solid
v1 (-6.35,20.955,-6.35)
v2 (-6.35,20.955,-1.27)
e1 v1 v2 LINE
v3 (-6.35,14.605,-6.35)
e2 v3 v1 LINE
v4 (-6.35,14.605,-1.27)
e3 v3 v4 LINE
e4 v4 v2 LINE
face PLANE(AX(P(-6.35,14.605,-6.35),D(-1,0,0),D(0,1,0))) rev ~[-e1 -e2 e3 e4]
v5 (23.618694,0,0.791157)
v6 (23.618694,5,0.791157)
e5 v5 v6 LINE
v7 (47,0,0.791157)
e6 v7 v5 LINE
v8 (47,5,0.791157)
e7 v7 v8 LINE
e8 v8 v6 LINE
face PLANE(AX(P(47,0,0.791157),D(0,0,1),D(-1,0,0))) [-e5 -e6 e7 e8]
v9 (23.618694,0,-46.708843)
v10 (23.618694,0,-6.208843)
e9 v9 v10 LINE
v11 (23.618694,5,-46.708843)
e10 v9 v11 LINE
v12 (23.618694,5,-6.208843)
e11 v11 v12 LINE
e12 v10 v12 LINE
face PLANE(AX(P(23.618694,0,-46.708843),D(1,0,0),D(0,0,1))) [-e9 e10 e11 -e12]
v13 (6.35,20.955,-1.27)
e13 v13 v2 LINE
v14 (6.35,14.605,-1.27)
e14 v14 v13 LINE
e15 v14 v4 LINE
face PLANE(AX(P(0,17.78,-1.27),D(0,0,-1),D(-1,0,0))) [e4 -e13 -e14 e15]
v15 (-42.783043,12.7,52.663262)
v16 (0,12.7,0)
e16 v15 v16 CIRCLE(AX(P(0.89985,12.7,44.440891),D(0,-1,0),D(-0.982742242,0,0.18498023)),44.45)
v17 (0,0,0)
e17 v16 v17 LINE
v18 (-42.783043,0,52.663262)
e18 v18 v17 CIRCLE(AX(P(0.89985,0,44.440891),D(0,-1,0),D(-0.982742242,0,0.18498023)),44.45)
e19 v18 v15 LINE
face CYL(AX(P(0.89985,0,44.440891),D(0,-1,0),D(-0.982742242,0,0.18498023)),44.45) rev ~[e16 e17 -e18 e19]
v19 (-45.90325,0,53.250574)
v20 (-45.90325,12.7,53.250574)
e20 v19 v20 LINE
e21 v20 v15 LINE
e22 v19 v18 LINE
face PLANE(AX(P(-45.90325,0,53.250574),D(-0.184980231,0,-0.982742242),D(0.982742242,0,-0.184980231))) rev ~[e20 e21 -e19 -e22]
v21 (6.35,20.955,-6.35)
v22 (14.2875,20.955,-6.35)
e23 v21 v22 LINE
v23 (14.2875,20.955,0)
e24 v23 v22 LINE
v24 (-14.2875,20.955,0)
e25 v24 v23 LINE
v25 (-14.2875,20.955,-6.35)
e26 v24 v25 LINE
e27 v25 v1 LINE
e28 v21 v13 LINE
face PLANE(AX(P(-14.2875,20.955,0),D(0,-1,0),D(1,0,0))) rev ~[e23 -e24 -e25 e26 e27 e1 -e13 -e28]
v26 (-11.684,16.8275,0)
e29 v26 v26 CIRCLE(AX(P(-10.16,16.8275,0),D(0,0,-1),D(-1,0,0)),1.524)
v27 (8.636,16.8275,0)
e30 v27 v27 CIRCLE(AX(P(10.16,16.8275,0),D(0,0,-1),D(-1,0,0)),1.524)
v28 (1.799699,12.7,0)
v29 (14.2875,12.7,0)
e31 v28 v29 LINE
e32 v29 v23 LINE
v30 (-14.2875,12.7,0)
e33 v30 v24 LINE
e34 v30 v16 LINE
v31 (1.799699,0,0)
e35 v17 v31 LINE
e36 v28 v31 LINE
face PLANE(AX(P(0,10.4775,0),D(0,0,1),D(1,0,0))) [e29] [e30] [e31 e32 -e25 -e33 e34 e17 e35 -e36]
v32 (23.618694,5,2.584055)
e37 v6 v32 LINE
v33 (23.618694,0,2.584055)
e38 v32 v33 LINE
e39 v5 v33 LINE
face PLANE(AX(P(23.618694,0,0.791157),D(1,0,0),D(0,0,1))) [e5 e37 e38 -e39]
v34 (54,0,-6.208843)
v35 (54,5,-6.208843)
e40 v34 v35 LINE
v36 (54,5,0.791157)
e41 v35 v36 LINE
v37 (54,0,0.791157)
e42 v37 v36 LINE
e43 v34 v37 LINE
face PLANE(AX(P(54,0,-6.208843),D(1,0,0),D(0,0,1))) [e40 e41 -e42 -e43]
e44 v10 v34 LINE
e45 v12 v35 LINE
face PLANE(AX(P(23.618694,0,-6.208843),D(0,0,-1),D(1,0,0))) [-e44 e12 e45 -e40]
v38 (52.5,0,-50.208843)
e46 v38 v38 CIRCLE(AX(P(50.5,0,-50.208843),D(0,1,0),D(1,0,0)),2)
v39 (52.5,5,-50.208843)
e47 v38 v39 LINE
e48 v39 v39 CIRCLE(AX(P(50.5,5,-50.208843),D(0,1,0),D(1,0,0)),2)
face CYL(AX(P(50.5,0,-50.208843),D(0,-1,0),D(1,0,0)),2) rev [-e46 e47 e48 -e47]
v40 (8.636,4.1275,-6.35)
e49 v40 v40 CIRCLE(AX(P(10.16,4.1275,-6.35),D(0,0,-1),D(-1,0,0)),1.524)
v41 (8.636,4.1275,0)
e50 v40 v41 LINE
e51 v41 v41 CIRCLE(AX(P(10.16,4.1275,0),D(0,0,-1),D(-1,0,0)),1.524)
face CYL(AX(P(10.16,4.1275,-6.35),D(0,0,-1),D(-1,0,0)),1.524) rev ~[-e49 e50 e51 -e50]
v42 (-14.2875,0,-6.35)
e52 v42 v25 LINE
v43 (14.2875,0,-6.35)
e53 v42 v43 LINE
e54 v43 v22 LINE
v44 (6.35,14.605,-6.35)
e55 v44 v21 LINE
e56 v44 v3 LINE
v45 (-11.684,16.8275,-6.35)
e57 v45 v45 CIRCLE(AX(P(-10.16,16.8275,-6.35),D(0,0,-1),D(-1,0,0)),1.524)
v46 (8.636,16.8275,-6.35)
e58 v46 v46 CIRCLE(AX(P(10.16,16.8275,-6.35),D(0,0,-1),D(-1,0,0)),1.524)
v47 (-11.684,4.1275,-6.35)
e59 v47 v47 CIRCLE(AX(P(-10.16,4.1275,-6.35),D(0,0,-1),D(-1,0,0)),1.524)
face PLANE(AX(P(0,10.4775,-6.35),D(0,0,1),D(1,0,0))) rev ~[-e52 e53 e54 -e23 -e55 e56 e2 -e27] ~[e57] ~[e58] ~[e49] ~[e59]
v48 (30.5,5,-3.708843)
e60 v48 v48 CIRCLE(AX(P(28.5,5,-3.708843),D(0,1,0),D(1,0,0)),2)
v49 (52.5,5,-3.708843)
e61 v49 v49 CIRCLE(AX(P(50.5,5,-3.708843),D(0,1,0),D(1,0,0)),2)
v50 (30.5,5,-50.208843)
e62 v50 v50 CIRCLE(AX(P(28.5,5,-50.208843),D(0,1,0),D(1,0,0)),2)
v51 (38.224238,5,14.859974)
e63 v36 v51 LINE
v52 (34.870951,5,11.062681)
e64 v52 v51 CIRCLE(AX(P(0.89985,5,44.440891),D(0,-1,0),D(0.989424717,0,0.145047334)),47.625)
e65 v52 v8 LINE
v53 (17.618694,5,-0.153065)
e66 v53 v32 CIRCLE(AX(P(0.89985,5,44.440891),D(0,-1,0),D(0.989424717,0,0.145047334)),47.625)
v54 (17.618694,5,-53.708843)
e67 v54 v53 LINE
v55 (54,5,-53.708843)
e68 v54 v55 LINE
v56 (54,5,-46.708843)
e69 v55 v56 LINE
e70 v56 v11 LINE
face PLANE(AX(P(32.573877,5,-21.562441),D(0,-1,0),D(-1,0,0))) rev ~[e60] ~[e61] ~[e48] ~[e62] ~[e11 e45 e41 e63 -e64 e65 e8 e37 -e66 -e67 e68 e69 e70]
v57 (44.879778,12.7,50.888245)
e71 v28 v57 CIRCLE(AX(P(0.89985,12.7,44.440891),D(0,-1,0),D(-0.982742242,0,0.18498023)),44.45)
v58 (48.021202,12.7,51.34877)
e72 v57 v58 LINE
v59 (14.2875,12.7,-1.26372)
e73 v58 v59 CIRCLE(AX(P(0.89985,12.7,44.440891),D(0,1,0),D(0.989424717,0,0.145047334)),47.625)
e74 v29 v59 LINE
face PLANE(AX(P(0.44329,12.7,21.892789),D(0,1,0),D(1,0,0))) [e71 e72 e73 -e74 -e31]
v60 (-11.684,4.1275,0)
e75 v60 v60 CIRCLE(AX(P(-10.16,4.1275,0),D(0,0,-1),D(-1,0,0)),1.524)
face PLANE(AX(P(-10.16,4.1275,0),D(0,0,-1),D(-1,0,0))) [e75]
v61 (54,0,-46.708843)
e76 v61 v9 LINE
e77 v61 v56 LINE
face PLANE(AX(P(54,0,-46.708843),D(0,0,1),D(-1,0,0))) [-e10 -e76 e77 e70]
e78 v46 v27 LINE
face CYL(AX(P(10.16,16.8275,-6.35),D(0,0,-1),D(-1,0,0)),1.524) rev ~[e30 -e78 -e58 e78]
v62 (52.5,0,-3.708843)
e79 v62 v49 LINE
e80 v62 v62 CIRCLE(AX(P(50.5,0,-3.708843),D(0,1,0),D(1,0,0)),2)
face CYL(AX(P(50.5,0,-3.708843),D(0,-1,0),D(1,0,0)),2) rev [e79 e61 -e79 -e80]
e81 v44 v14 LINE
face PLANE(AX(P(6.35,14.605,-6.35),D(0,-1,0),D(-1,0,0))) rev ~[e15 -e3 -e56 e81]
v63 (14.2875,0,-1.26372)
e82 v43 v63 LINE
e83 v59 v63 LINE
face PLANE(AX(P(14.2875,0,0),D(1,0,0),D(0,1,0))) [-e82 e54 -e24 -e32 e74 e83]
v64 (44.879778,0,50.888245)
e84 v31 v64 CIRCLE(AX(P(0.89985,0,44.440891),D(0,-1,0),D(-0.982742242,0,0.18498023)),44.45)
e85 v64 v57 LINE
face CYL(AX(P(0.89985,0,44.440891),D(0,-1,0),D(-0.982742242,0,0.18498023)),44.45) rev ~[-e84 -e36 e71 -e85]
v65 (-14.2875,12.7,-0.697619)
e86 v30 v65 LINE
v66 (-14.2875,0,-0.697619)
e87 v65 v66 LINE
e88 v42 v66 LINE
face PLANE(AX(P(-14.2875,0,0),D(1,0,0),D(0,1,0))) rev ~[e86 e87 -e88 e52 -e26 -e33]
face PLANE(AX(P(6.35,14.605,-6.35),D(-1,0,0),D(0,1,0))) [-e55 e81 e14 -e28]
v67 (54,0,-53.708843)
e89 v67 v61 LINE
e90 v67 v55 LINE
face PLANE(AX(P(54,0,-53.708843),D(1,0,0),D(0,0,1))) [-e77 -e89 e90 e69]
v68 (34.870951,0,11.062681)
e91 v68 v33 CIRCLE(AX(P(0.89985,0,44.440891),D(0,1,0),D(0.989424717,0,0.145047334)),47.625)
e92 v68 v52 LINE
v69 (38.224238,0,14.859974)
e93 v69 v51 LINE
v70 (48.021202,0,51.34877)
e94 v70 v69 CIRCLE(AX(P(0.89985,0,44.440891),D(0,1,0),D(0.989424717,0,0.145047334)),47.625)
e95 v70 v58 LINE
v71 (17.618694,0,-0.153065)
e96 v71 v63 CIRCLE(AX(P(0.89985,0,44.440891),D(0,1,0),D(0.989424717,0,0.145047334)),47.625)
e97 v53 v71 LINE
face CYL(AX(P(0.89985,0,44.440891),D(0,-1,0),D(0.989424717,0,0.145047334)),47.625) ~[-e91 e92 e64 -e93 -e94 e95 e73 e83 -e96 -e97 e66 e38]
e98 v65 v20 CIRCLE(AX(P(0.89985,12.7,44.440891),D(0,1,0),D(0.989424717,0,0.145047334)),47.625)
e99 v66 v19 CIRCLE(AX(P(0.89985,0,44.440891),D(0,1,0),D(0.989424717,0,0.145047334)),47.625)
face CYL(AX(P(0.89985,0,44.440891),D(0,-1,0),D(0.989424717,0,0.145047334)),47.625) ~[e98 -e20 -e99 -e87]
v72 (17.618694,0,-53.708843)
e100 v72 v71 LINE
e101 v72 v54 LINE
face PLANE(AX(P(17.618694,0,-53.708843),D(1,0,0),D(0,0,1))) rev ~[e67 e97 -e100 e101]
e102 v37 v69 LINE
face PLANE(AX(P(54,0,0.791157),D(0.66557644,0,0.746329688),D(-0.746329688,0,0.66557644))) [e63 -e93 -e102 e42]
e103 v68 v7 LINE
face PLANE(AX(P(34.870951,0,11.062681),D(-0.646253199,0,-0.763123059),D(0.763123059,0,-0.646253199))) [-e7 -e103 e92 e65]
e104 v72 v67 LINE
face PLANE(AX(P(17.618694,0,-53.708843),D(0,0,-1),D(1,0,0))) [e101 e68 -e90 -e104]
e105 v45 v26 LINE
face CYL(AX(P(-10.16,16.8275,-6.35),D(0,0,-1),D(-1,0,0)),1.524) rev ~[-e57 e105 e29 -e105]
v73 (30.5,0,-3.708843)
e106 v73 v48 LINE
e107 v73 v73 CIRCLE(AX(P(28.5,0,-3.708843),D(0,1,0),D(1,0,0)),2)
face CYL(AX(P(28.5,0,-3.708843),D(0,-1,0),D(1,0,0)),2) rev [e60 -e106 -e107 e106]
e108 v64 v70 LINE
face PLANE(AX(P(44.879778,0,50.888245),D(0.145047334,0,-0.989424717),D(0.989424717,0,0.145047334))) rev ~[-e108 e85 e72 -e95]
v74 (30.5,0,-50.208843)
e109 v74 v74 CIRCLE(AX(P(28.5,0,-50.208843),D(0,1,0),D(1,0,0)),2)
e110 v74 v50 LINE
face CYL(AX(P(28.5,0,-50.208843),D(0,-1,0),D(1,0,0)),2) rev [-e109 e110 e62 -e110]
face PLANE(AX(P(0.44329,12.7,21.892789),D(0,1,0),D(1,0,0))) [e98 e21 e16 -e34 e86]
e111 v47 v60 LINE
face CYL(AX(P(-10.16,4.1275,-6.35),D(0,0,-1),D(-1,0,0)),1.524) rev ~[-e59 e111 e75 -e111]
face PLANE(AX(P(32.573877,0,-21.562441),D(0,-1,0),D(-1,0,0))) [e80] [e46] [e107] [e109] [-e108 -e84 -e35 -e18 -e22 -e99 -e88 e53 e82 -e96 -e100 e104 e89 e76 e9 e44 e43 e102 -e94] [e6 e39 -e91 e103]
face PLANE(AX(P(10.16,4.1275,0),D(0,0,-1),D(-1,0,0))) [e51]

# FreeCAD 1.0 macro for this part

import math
import FreeCAD as App
import Part
import Sketcher

V = App.Vector
Q = App.Units.Quantity

doc = App.newDocument("Part")
params = doc.addObject("Spreadsheet::Sheet", "Params")
for row, (alias, value) in enumerate([
    ("sketch1_radius", "1.75 in"),
    ("sketch1_radius2", "1.875 in"),
    ("pad1_length", "0.5 in"),
    ("sketch2_width", "1.125 in"),
    ("sketch2_height", "0.825 in"),
    ("pad2_length", "0.25 in"),
    ("sketch3_width", "1.125 in"),
    ("sketch3_height", "0.825 in"),
    ("pad3_length", "0.2 in"),
    ("sketch4_width", "0.5 in"),
    ("sketch4_height", "0.25 in"),
    ("pocket1_length", "0.2 in"),
    ("sketch5_diameter", "0.12 in"),
    ("pocket2_length", "0.25 in"),
    ("pad4_length", "5 mm"),
], start=1):
    params.set(f"A{row}", alias)
    params.set(f"B{row}", "=" + value)
    params.setAlias(f"B{row}", alias)

body = doc.addObject("PartDesign::Body", "Body")

# Sketch on XZ plane
sketch1 = body.newObject("Sketcher::SketchObject", "Sketch")
sketch1.AttachmentSupport = (doc.getObject("XZ_Plane"), [""])
sketch1.MapMode = "FlatFace"
sketch1.addGeometry([
    Part.LineSegment(V(-45.90325, 53.250574, 0), V(-42.783043, 52.663262, 0)),
    Part.ArcOfCircle(Part.Circle(V(0.89985, 44.440891, 0), V(0, 0, 1), 44.45), math.radians(169.34002), math.radians(368.34002)),
    Part.LineSegment(V(44.879778, 50.888245, 0), V(48.021202, 51.34877, 0)),
    Part.ArcOfCircle(Part.Circle(V(0.89985, 44.440891, 0), V(0, 0, 1), 47.625), math.radians(169.34002), math.radians(368.34002)),
], False)
sketch1.addConstraint([
    Sketcher.Constraint("Coincident", 0, 2, 1, 1),
    Sketcher.Constraint("Coincident", 1, 2, 2, 1),
    Sketcher.Constraint("Coincident", 2, 2, 3, 2),
    Sketcher.Constraint("Coincident", 3, 1, 0, 1),
    Sketcher.Constraint("Coincident", 3, 3, 1, 3),
    Sketcher.Constraint("Radius", 1, Q("1.75 in")),
    Sketcher.Constraint("Radius", 3, Q("1.875 in")),
    Sketcher.Constraint("DistanceX", -1, 1, 2, 2, Q("48.021202 mm")),
    Sketcher.Constraint("DistanceX", 3, 1, 3, 3, Q("46.803099 mm")),
    Sketcher.Constraint("DistanceX", -1, 1, 1, 3, Q("0.89985 mm")),
    Sketcher.Constraint("DistanceY", -1, 1, 1, 3, Q("44.440891 mm")),
    Sketcher.Constraint("DistanceY", -1, 1, 0, 2, Q("52.663262 mm")),
    Sketcher.Constraint("DistanceX", -1, 1, 1, 2, Q("44.879778 mm")),
])
sketch1.setExpression("Constraints[5]", "Params.sketch1_radius")
sketch1.setExpression("Constraints[6]", "Params.sketch1_radius2")
pad1 = body.newObject("PartDesign::Pad", "Pad")
pad1.Profile = sketch1
pad1.setExpression("Length", "Params.pad1_length")
pad1.Reversed = True

# Sketch on XY plane
sketch2 = body.newObject("Sketcher::SketchObject", "Sketch001")
sketch2.AttachmentSupport = (doc.getObject("XY_Plane"), [""])
sketch2.MapMode = "FlatFace"
sketch2.addGeometry([
    Part.LineSegment(V(-14.2875, 20.955, 0), V(-14.2875, 0, 0)),
    Part.LineSegment(V(-14.2875, 0, 0), V(14.2875, 0, 0)),
    Part.LineSegment(V(14.2875, 0, 0), V(14.2875, 20.955, 0)),
    Part.LineSegment(V(14.2875, 20.955, 0), V(-14.2875, 20.955, 0)),
], False)
sketch2.addConstraint([
    Sketcher.Constraint("Coincident", 0, 2, 1, 1),
    Sketcher.Constraint("Coincident", 1, 2, 2, 1),
    Sketcher.Constraint("Coincident", 2, 2, 3, 1),
    Sketcher.Constraint("Coincident", 3, 2, 0, 1),
    Sketcher.Constraint("Vertical", 0),
    Sketcher.Constraint("Horizontal", 1),
    Sketcher.Constraint("Vertical", 2),
    Sketcher.Constraint("Horizontal", 3),
    Sketcher.Constraint("Symmetric", 0, 2, 1, 2, -1, 1),
    Sketcher.Constraint("DistanceX", 1, 1, 1, 2, Q("1.125 in")),
    Sketcher.Constraint("DistanceY", 0, 2, 0, 1, Q("0.825 in")),
])
sketch2.setExpression("Constraints[9]", "Params.sketch2_width")
sketch2.setExpression("Constraints[10]", "Params.sketch2_height")
pad2 = body.newObject("PartDesign::Pad", "Pad001")
pad2.Profile = sketch2
pad2.setExpression("Length", "Params.pad2_length")
pad2.Reversed = True

# Sketch on XY plane
sketch3 = body.newObject("Sketcher::SketchObject", "Sketch002")
sketch3.AttachmentSupport = (doc.getObject("XY_Plane"), [""])
sketch3.MapMode = "FlatFace"
sketch3.addGeometry([
    Part.LineSegment(V(-14.2875, 20.955, 0), V(-14.2875, 0, 0)),
    Part.LineSegment(V(-14.2875, 0, 0), V(14.2875, 0, 0)),
    Part.LineSegment(V(14.2875, 0, 0), V(14.2875, 20.955, 0)),
    Part.LineSegment(V(14.2875, 20.955, 0), V(-14.2875, 20.955, 0)),
], False)
sketch3.addConstraint([
    Sketcher.Constraint("Coincident", 0, 2, 1, 1),
    Sketcher.Constraint("Coincident", 1, 2, 2, 1),
    Sketcher.Constraint("Coincident", 2, 2, 3, 1),
    Sketcher.Constraint("Coincident", 3, 2, 0, 1),
    Sketcher.Constraint("Vertical", 0),
    Sketcher.Constraint("Horizontal", 1),
    Sketcher.Constraint("Vertical", 2),
    Sketcher.Constraint("Horizontal", 3),
    Sketcher.Constraint("Symmetric", 0, 2, 1, 2, -1, 1),
    Sketcher.Constraint("DistanceX", 1, 1, 1, 2, Q("1.125 in")),
    Sketcher.Constraint("DistanceY", 0, 2, 0, 1, Q("0.825 in")),
])
sketch3.setExpression("Constraints[9]", "Params.sketch3_width")
sketch3.setExpression("Constraints[10]", "Params.sketch3_height")
pad3 = body.newObject("PartDesign::Pad", "Pad002")
pad3.Profile = sketch3
pad3.setExpression("Length", "Params.pad3_length")
pad3.Reversed = True

# Sketch on XY plane
sketch4 = body.newObject("Sketcher::SketchObject", "Sketch003")
sketch4.AttachmentSupport = (doc.getObject("XY_Plane"), [""])
sketch4.MapMode = "FlatFace"
sketch4.AttachmentOffset = App.Placement(V(0, 0, -0.25 * 25.4), App.Rotation())
sketch4.addGeometry([
    Part.LineSegment(V(6.35, 20.955, 0), V(6.35, 14.605, 0)),
    Part.LineSegment(V(6.35, 14.605, 0), V(-6.35, 14.605, 0)),
    Part.LineSegment(V(-6.35, 14.605, 0), V(-6.35, 20.955, 0)),
    Part.LineSegment(V(-6.35, 20.955, 0), V(6.35, 20.955, 0)),
], False)
sketch4.addConstraint([
    Sketcher.Constraint("Coincident", 0, 2, 1, 1),
    Sketcher.Constraint("Coincident", 1, 2, 2, 1),
    Sketcher.Constraint("Coincident", 2, 2, 3, 1),
    Sketcher.Constraint("Coincident", 3, 2, 0, 1),
    Sketcher.Constraint("Vertical", 0),
    Sketcher.Constraint("Horizontal", 1),
    Sketcher.Constraint("Vertical", 2),
    Sketcher.Constraint("Horizontal", 3),
    Sketcher.Constraint("DistanceX", 1, 2, 1, 1, Q("0.5 in")),
    Sketcher.Constraint("DistanceY", 0, 2, 0, 1, Q("0.25 in")),
    Sketcher.Constraint("DistanceX", -1, 1, 0, 2, Q("0.25 in")),
    Sketcher.Constraint("DistanceY", -1, 1, 0, 2, Q("0.575 in")),
])
sketch4.setExpression("Constraints[8]", "Params.sketch4_width")
sketch4.setExpression("Constraints[9]", "Params.sketch4_height")
pocket1 = body.newObject("PartDesign::Pocket", "Pocket")
pocket1.Profile = sketch4
pocket1.setExpression("Length", "Params.pocket1_length")
pocket1.Reversed = True

# Sketch on XY plane
sketch5 = body.newObject("Sketcher::SketchObject", "Sketch004")
sketch5.AttachmentSupport = (doc.getObject("XY_Plane"), [""])
sketch5.MapMode = "FlatFace"
sketch5.AttachmentOffset = App.Placement(V(0, 0, -0.25 * 25.4), App.Rotation())
sketch5.addGeometry([
    Part.Circle(V(10.16, 4.1275, 0), V(0, 0, 1), 1.524),
    Part.Circle(V(10.16, 16.8275, 0), V(0, 0, 1), 1.524),
    Part.Circle(V(-10.16, 4.1275, 0), V(0, 0, 1), 1.524),
    Part.Circle(V(-10.16, 16.8275, 0), V(0, 0, 1), 1.524),
], False)
sketch5.addConstraint([
    Sketcher.Constraint("Equal", 0, 1),
    Sketcher.Constraint("Equal", 1, 2),
    Sketcher.Constraint("Equal", 2, 3),
    Sketcher.Constraint("Symmetric", 0, 3, 2, 3, -2),
    Sketcher.Constraint("Symmetric", 1, 3, 3, 3, -2),
    Sketcher.Constraint("Vertical", 0, 3, 1, 3),
    Sketcher.Constraint("Diameter", 0, Q("0.12 in")),
    Sketcher.Constraint("DistanceX", -1, 1, 0, 3, Q("0.4 in")),
    Sketcher.Constraint("DistanceY", 0, 3, 1, 3, Q("0.5 in")),
    Sketcher.Constraint("DistanceY", -1, 1, 0, 3, Q("0.1625 in")),
])
sketch5.setExpression("Constraints[6]", "Params.sketch5_diameter")
pocket2 = body.newObject("PartDesign::Pocket", "Pocket001")
pocket2.Profile = sketch5
pocket2.setExpression("Length", "Params.pocket2_length")
pocket2.Reversed = True

# Sketch on XZ plane
sketch6 = body.newObject("Sketcher::SketchObject", "Sketch005")
sketch6.AttachmentSupport = (doc.getObject("XZ_Plane"), [""])
sketch6.MapMode = "FlatFace"
sketch6.addGeometry([
    Part.LineSegment(V(23.618694, 2.892477, 0), V(23.618694, 0.791157, 0)),  # 0
    Part.LineSegment(V(23.618694, 0.791157, 0), V(47, 0.791157, 0)),  # 1
    Part.LineSegment(V(47, 0.791157, 0), V(34.870951, 11.062681, 0)),  # 2
    Part.LineSegment(V(34.870951, 11.062681, 0), V(38.224238, 14.859974, 0)),  # 3
    Part.LineSegment(V(38.224238, 14.859974, 0), V(54, 0.791157, 0)),  # 4
    Part.LineSegment(V(54, 0.791157, 0), V(54, -6.208843, 0)),  # 5
    Part.LineSegment(V(54, -6.208843, 0), V(23.618694, -6.208843, 0)),  # 6
    Part.LineSegment(V(23.618694, -6.208843, 0), V(23.618694, -46.708843, 0)),  # 7
    Part.LineSegment(V(23.618694, -46.708843, 0), V(54, -46.708843, 0)),  # 8
    Part.LineSegment(V(54, -46.708843, 0), V(54, -53.708843, 0)),  # 9
    Part.LineSegment(V(54, -53.708843, 0), V(17.618694, -53.708843, 0)),  # 10
    Part.LineSegment(V(17.618694, -53.708843, 0), V(17.618694, 2.892477, 0)),  # 11
    Part.LineSegment(V(17.618694, 2.892477, 0), V(23.618694, 2.892477, 0)),  # 12
    Part.Circle(V(50.5, -3.708843, 0), V(0, 0, 1), 2),  # 13
    Part.Circle(V(28.5, -3.708843, 0), V(0, 0, 1), 2),  # 14
    Part.Circle(V(50.5, -50.208843, 0), V(0, 0, 1), 2),  # 15
    Part.Circle(V(28.5, -50.208843, 0), V(0, 0, 1), 2),  # 16
], False)
sketch6.addConstraint([
    Sketcher.Constraint("Coincident", 0, 2, 1, 1),
    Sketcher.Constraint("Coincident", 1, 2, 2, 1),
    Sketcher.Constraint("Coincident", 2, 2, 3, 1),
    Sketcher.Constraint("Coincident", 3, 2, 4, 1),
    Sketcher.Constraint("Coincident", 4, 2, 5, 1),
    Sketcher.Constraint("Coincident", 5, 2, 6, 1),
    Sketcher.Constraint("Coincident", 6, 2, 7, 1),
    Sketcher.Constraint("Coincident", 7, 2, 8, 1),
    Sketcher.Constraint("Coincident", 8, 2, 9, 1),
    Sketcher.Constraint("Coincident", 9, 2, 10, 1),
    Sketcher.Constraint("Coincident", 10, 2, 11, 1),
    Sketcher.Constraint("Coincident", 11, 2, 12, 1),
    Sketcher.Constraint("Coincident", 12, 2, 0, 1),
    Sketcher.Constraint("Vertical", 0),
    Sketcher.Constraint("Horizontal", 1),
    Sketcher.Constraint("Vertical", 5),
    Sketcher.Constraint("Horizontal", 6),
    Sketcher.Constraint("Vertical", 7),
    Sketcher.Constraint("Horizontal", 8),
    Sketcher.Constraint("Vertical", 9),
    Sketcher.Constraint("Horizontal", 10),
    Sketcher.Constraint("Vertical", 11),
    Sketcher.Constraint("Horizontal", 12),
    Sketcher.Constraint("Equal", 13, 14),
    Sketcher.Constraint("Equal", 14, 15),
    Sketcher.Constraint("Equal", 15, 16),
    Sketcher.Constraint("Horizontal", 13, 3, 14, 3),
    Sketcher.Constraint("Horizontal", 15, 3, 16, 3),
    Sketcher.Constraint("Horizontal", 1, 2, 4, 2),
    Sketcher.Constraint("Vertical", 13, 3, 15, 3),
    Sketcher.Constraint("Vertical", 14, 3, 16, 3),
    Sketcher.Constraint("Vertical", 0, 2, 6, 2),
    Sketcher.Constraint("Vertical", 5, 2, 8, 2),
    Sketcher.Constraint("Equal", 5, 9),
    Sketcher.Constraint("Diameter", 13, Q("4 mm")),
    Sketcher.Constraint("DistanceX", 12, 1, 12, 2, Q("6 mm")),
    Sketcher.Constraint("DistanceY", 5, 2, 5, 1, Q("7 mm")),
    Sketcher.Constraint("DistanceY", 7, 2, 7, 1, Q("40.5 mm")),
    Sketcher.Constraint("DistanceY", 0, 2, 0, 1, Q("2.10132 mm")),
    Sketcher.Constraint("DistanceX", -1, 1, 13, 3, Q("50.5 mm")),
    Sketcher.Constraint("DistanceX", -1, 1, 14, 3, Q("28.5 mm")),
    Sketcher.Constraint("DistanceX", -1, 1, 1, 2, Q("47 mm")),
    Sketcher.Constraint("DistanceX", -1, 1, 4, 2, Q("54 mm")),
    Sketcher.Constraint("DistanceY", 15, 3, 13, 3, Q("46.5 mm")),
    Sketcher.Constraint("DistanceY", 14, 3, 0, 2, Q("4.5 mm")),
    Sketcher.Constraint("Distance", 2, Q("15.893962 mm")),
    Sketcher.Constraint("Distance", 3, Q("5.065961 mm")),
    Sketcher.Constraint("DistanceX", 1, 1, 1, 2, Q("23.381306 mm")),
    Sketcher.Constraint("DistanceX", -1, 1, 2, 2, Q("34.870951 mm")),
    Sketcher.Constraint("DistanceY", -1, 1, 2, 2, Q("11.062681 mm")),
    Sketcher.Constraint("DistanceX", -1, 1, 3, 2, Q("38.224238 mm")),
])
pad4 = body.newObject("PartDesign::Pad", "Pad003")
pad4.Profile = sketch6
pad4.setExpression("Length", "Params.pad4_length")
pad4.Reversed = True

doc.recompute()
